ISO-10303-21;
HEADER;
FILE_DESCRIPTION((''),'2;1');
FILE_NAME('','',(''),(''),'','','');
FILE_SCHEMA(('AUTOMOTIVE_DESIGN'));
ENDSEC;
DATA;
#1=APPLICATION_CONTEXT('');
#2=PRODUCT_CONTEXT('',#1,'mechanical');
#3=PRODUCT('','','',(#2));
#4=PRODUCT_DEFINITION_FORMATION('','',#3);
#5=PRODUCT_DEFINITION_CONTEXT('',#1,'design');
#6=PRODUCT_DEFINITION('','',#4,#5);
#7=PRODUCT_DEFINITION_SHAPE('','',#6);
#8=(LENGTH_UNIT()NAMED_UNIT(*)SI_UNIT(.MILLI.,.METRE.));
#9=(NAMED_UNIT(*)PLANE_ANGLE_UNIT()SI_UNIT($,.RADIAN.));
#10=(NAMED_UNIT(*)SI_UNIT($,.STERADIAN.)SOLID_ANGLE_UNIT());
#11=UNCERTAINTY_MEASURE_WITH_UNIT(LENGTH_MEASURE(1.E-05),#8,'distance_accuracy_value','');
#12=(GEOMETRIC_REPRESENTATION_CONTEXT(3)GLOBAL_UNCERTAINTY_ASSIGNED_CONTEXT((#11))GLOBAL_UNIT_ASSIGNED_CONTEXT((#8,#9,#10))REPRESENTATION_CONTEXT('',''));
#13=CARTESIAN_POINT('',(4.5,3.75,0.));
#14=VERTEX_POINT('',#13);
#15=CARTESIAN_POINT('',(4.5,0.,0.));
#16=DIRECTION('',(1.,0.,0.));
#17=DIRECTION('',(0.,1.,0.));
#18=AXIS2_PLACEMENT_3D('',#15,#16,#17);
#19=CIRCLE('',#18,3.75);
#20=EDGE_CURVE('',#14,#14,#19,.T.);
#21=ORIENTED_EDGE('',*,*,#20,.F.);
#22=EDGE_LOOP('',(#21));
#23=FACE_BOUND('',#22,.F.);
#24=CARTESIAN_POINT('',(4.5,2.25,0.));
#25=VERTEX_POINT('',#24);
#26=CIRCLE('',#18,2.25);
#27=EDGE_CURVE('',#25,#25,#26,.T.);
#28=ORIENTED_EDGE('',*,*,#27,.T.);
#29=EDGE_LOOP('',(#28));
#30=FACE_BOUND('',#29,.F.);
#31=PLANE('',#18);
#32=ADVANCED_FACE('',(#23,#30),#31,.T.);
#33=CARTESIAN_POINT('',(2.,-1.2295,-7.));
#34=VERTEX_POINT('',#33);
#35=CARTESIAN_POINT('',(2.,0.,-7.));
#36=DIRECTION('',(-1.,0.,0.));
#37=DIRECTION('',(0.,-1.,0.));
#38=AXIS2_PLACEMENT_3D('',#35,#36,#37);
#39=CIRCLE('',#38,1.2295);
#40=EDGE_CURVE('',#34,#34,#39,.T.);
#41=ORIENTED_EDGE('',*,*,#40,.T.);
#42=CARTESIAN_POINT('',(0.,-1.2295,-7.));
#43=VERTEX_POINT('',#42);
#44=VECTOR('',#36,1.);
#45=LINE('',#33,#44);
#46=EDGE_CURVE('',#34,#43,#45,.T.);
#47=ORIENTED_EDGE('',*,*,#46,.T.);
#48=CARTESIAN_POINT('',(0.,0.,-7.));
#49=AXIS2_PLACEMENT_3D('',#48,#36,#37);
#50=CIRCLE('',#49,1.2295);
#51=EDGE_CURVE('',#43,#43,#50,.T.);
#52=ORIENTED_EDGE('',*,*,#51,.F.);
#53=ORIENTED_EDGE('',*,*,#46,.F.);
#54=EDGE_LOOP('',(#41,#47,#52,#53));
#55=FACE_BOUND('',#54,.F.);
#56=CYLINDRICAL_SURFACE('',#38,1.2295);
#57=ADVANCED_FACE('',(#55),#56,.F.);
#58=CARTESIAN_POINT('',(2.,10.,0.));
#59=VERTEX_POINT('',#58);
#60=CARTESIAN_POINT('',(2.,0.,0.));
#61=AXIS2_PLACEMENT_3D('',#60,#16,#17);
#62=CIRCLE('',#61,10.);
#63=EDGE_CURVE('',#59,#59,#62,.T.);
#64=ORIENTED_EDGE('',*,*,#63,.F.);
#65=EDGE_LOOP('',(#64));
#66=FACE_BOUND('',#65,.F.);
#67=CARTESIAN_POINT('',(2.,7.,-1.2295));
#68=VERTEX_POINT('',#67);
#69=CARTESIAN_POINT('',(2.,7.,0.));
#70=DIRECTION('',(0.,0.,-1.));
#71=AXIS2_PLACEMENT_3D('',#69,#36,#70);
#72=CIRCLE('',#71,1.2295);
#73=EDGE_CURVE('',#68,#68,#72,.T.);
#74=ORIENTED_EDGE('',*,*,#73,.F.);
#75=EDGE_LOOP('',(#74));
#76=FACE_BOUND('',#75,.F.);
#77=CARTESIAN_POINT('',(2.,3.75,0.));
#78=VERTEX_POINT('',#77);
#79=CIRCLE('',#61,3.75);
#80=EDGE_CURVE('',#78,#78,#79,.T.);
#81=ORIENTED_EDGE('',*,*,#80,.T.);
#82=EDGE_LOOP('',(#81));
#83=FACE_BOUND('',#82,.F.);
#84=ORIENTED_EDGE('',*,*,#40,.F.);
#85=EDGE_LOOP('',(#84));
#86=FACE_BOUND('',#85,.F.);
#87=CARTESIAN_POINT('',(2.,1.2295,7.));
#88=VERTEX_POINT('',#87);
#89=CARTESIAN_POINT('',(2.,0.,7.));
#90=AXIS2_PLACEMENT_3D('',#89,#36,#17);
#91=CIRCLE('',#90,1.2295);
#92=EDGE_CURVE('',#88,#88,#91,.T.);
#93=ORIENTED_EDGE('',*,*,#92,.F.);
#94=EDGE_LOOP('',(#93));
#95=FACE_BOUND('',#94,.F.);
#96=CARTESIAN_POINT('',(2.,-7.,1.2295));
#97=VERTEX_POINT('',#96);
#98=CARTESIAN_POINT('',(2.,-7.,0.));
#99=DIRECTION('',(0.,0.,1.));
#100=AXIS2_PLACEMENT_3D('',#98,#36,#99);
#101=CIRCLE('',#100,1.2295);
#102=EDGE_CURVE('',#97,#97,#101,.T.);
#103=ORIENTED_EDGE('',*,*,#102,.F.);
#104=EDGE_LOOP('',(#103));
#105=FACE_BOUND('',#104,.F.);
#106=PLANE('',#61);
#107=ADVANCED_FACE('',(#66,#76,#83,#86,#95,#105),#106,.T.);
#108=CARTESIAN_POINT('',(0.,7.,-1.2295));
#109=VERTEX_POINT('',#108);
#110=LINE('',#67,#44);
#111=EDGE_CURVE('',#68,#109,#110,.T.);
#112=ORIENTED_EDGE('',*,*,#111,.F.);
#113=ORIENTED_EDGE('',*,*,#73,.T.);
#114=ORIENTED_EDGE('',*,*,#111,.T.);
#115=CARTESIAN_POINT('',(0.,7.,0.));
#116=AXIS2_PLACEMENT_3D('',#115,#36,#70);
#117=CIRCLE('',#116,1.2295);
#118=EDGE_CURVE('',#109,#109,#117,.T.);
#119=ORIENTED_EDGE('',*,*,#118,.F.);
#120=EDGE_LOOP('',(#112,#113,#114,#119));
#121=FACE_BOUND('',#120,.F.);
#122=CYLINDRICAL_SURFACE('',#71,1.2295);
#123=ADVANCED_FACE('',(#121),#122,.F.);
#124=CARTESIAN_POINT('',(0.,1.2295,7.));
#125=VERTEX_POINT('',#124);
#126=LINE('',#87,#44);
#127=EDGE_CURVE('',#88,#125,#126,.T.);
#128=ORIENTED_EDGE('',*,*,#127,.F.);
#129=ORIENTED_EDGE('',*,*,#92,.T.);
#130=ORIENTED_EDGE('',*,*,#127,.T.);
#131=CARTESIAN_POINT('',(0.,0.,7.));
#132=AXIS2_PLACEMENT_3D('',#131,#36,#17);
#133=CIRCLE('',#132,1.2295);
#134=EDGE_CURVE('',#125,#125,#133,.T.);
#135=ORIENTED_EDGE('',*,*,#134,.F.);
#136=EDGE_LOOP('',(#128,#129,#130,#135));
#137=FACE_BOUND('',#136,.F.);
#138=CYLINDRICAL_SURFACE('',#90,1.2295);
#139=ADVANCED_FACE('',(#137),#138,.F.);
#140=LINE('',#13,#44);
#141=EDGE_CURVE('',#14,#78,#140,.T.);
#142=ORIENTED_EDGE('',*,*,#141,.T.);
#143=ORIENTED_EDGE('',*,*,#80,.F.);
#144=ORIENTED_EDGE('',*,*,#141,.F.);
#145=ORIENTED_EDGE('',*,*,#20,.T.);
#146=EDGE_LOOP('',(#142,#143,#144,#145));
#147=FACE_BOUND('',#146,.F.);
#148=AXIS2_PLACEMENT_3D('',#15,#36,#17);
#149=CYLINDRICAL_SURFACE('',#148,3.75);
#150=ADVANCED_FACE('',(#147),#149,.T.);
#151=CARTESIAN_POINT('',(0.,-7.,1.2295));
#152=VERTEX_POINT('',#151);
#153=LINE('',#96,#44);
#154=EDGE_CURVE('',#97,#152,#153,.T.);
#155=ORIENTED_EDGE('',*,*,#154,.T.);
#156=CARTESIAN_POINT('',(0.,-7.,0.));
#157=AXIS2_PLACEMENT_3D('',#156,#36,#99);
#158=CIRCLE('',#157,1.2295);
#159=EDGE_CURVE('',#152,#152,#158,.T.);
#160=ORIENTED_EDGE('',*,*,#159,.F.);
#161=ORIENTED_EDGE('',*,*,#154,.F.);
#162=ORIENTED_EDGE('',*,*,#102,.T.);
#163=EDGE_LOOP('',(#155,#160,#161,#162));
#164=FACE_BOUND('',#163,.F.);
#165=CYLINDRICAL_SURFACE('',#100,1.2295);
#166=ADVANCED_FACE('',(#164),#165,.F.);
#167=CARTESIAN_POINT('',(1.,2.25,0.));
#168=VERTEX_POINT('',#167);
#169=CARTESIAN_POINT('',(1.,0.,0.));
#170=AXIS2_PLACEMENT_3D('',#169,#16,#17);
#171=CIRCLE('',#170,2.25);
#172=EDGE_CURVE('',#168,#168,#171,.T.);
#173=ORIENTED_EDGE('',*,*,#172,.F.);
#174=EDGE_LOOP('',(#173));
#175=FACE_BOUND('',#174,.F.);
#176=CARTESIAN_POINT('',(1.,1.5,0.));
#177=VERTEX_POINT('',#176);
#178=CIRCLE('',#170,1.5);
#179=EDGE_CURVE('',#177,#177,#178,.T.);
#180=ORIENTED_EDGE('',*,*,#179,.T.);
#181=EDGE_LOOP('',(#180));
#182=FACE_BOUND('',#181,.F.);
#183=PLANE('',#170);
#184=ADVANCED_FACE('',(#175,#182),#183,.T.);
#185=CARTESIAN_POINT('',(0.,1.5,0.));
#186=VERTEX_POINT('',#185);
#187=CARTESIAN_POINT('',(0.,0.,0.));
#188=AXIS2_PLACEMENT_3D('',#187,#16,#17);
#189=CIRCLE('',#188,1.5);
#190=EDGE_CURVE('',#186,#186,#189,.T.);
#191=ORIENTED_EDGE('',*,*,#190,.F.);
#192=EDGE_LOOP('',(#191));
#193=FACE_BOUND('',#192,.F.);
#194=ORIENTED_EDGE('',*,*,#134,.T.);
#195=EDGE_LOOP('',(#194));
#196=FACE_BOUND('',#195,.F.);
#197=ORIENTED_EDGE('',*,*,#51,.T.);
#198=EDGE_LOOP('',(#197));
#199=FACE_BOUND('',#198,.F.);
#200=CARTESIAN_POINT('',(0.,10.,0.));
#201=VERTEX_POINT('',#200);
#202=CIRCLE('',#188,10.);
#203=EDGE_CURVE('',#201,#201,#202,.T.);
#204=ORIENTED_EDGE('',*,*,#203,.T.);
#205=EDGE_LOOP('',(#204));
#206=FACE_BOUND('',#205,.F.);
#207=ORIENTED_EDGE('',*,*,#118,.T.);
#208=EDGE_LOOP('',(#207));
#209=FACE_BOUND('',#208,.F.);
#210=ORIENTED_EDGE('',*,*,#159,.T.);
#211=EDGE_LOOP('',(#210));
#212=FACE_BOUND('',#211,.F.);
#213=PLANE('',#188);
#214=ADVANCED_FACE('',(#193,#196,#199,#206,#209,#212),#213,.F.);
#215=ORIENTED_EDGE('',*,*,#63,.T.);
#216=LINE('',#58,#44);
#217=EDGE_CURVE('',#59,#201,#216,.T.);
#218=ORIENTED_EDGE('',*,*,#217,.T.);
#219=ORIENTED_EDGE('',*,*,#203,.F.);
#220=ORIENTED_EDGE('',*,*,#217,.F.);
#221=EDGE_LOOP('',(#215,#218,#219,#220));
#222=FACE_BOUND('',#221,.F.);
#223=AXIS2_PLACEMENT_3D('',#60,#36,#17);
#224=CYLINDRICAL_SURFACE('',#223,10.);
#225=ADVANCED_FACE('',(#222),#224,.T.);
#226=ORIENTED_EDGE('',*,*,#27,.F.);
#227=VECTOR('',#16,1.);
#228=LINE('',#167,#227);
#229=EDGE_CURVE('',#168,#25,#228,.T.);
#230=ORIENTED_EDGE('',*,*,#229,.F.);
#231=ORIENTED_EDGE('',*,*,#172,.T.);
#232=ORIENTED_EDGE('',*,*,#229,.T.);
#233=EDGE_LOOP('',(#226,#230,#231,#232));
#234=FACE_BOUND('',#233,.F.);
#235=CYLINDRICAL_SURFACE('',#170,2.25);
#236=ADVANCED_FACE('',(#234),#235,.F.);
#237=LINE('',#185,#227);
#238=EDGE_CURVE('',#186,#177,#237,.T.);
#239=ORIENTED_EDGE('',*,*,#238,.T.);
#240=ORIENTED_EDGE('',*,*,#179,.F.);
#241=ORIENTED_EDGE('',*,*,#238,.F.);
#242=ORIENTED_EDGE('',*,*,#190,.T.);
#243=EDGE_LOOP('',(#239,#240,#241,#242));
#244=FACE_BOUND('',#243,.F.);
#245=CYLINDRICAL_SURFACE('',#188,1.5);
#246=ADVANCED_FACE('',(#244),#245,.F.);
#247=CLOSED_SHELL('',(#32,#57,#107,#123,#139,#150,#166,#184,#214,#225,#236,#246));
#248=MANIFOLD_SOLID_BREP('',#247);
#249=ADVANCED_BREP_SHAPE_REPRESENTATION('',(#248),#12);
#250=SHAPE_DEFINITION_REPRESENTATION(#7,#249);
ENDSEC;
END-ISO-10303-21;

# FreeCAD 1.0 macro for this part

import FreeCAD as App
import Part
import Sketcher
from FreeCAD import Vector


def add_polygon(sketch, points):
    """Adds a closed chain of lines whose ends are joined by coincident constraints."""
    first, n = sketch.GeometryCount, len(points)
    for a, b in zip(points, points[1:] + points[:1]):
        sketch.addGeometry(Part.LineSegment(App.Vector(*a, 0), App.Vector(*b, 0)), False)
    for i in range(n):
        sketch.addConstraint(Sketcher.Constraint("Coincident", first + i, 2, first + (i + 1) % n, 1))

doc = App.newDocument("Part")
body = doc.addObject("PartDesign::Body", "Body")

# Sketch on XY plane
sketch1 = body.newObject("Sketcher::SketchObject", "Sketch")
sketch1.AttachmentSupport = (doc.getObject("XY_Plane"), [""])
sketch1.MapMode = "FlatFace"
add_polygon(sketch1, [(0, 10), (0, 1.5), (1, 1.5), (1, 2.25), (4.5, 2.25), (4.5, 3.75), (2, 3.75), (2, 10)])  # lines 0-7
sketch1.addConstraint([
    Sketcher.Constraint("Vertical", 0),
    Sketcher.Constraint("Horizontal", 1),
    Sketcher.Constraint("Vertical", 2),
    Sketcher.Constraint("Horizontal", 3),
    Sketcher.Constraint("Vertical", 4),
    Sketcher.Constraint("Horizontal", 5),
    Sketcher.Constraint("Vertical", 6),
    Sketcher.Constraint("Horizontal", 7),
    Sketcher.Constraint("PointOnObject", 0, 2, -2),
    Sketcher.Constraint("DistanceX", 1, 1, 1, 2, 1.0),
    Sketcher.Constraint("DistanceX", 7, 2, 7, 1, 2.0),
    Sketcher.Constraint("DistanceX", -1, 1, 3, 2, 4.5),
    Sketcher.Constraint("DistanceY", 0, 2, 0, 1, 8.5),
    Sketcher.Constraint("DistanceY", 4, 1, 4, 2, 1.5),
    Sketcher.Constraint("DistanceY", -1, 1, 6, 2, 10.0),
    Sketcher.Constraint("DistanceY", 2, 1, 2, 2, 0.75),
])
revolution = body.newObject("PartDesign::Revolution", "Revolution")
revolution.Profile = sketch1
revolution.ReferenceAxis = (sketch1, ["H_Axis"])
revolution.Angle = 360

# Sketch on YZ plane
sketch2 = body.newObject("Sketcher::SketchObject", "Sketch001")
sketch2.AttachmentSupport = (doc.getObject("YZ_Plane"), [""])
sketch2.MapMode = "FlatFace"
sketch2.AttachmentOffset = App.Placement(Vector(0, 0, 2), App.Rotation())
sketch2.addGeometry(Part.Circle(Vector(7, 0, 0), Vector(0, 0, 1), 1.2295), False)
sketch2.addConstraint([
    Sketcher.Constraint("PointOnObject", 0, 3, -1),
    Sketcher.Constraint("Diameter", 0, 2.459),
    Sketcher.Constraint("DistanceX", -1, 1, 0, 3, 7.0),
])
doc.recompute()
hole = body.newObject("PartDesign::Hole", "Hole")
hole.Profile = sketch2
hole.ThreadType = "None"
hole.Diameter = 2.459
hole.DepthType = "ThroughAll"
doc.recompute()

polarpattern = body.newObject("PartDesign::PolarPattern", "PolarPattern")
polarpattern.Originals = [hole]
polarpattern.Axis = (doc.getObject("X_Axis"), [""])
polarpattern.Angle = 360
polarpattern.Occurrences = 4
body.Tip = polarpattern

doc.recompute()
